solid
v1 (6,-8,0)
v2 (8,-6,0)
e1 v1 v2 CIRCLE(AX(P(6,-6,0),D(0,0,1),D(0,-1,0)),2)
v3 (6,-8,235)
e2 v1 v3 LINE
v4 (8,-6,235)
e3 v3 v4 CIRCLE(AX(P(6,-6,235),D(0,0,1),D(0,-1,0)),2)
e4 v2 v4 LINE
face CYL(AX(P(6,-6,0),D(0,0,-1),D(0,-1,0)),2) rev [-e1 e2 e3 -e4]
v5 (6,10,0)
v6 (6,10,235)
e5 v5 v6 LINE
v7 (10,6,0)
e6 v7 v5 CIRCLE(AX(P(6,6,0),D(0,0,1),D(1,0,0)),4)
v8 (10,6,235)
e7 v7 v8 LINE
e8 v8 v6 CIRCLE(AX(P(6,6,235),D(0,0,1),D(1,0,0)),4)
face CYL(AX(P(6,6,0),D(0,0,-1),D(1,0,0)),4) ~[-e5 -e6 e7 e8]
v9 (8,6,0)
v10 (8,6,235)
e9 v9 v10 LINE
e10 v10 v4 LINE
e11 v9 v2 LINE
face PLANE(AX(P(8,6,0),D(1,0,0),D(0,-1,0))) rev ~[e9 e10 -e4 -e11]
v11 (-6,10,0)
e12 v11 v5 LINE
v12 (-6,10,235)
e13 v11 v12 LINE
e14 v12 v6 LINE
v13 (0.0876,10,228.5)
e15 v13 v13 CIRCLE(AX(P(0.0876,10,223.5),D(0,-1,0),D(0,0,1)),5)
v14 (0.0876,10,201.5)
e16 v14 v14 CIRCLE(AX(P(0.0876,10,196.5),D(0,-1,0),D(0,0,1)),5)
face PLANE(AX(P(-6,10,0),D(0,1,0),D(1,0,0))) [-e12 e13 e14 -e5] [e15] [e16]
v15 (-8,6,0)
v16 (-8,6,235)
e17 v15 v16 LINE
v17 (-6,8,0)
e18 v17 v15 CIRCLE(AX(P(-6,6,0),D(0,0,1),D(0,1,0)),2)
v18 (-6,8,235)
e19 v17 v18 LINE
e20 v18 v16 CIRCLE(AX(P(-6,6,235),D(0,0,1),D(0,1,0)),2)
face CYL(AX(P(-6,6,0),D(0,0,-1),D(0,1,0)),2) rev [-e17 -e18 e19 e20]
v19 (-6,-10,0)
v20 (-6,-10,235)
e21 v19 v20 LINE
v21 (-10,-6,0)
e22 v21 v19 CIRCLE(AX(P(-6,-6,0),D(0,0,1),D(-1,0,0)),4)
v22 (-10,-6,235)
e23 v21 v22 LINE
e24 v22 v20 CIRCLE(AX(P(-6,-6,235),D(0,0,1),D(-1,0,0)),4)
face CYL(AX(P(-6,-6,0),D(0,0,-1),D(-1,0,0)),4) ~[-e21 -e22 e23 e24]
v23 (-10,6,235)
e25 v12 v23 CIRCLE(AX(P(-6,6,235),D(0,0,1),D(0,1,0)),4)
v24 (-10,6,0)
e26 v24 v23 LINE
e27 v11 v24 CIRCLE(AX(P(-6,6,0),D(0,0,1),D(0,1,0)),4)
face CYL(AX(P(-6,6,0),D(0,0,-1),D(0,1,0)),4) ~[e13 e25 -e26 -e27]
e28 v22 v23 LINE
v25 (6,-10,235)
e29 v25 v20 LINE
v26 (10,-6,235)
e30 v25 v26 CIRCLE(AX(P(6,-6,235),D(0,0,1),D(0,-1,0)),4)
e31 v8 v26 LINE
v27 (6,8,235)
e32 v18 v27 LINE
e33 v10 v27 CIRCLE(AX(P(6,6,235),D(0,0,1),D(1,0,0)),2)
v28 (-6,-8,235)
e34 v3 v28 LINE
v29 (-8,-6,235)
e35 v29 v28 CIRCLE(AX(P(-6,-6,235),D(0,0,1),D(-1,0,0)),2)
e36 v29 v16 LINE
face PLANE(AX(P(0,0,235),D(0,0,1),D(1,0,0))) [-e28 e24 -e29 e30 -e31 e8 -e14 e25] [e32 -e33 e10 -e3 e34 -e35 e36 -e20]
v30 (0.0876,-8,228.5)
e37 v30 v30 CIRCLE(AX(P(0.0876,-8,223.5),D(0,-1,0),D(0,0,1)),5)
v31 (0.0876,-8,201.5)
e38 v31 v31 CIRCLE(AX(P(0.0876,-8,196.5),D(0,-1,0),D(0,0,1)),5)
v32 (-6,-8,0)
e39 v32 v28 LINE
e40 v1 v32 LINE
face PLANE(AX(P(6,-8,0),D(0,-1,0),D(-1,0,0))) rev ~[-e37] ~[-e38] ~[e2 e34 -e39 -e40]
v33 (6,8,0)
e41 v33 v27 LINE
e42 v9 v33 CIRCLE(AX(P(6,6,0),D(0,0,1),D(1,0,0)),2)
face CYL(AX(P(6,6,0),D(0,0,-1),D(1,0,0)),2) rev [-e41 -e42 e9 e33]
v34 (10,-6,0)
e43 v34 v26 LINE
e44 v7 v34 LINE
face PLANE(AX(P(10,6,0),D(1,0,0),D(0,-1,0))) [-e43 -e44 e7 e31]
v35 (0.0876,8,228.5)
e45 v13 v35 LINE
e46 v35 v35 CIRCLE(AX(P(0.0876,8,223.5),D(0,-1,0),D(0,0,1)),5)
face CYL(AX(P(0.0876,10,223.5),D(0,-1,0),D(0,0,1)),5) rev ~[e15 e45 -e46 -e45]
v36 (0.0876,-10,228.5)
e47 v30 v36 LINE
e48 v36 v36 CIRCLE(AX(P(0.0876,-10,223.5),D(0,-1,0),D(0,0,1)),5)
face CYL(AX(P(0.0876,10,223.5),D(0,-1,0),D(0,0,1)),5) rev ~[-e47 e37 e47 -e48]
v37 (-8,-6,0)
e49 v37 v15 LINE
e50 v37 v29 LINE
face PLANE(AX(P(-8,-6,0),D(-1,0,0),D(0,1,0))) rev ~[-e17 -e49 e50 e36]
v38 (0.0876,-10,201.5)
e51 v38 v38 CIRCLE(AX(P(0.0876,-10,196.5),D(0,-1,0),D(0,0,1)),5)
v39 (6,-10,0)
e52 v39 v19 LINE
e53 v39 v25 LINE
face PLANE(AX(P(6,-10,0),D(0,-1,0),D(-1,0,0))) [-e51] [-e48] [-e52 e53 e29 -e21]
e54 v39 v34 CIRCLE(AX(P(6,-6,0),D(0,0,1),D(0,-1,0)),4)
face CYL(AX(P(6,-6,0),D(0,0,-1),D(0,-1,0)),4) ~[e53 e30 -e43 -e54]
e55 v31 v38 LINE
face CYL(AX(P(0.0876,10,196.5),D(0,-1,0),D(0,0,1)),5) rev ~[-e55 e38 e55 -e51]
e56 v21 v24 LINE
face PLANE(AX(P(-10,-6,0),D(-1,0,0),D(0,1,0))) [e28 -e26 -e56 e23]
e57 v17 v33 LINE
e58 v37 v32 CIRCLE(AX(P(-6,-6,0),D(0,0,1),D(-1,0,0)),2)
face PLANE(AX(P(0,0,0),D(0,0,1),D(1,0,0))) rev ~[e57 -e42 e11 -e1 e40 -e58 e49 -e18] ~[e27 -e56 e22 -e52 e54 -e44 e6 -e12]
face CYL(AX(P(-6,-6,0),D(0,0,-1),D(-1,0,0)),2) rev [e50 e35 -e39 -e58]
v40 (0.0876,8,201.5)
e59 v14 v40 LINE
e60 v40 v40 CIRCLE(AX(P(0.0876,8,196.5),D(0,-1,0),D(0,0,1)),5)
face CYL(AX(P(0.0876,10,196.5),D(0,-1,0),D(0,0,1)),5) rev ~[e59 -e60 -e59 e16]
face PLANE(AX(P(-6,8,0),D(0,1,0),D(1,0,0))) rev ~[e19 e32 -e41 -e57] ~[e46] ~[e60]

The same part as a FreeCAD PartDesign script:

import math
import FreeCAD as App
import Part
import Sketcher
Q = App.Units.Quantity

doc = App.newDocument("Part")
body = doc.addObject("PartDesign::Body", "Body")

sketch1 = body.newObject("Sketcher::SketchObject", "Sketch")
sketch1.AttachmentSupport = (doc.getObject("XY_Plane"), [""])
sketch1.MapMode = "FlatFace"
sketch1.addGeometry(Part.LineSegment(App.Vector(-10, 6, 0), App.Vector(-10, -6, 0)), False)
sketch1.addGeometry(Part.ArcOfCircle(Part.Circle(App.Vector(-6, -6, 0), App.Vector(0, 0, 1), 4), math.radians(180), math.radians(270)), False)
sketch1.addGeometry(Part.LineSegment(App.Vector(-6, -10, 0), App.Vector(6, -10, 0)), False)
sketch1.addGeometry(Part.ArcOfCircle(Part.Circle(App.Vector(6, -6, 0), App.Vector(0, 0, 1), 4), math.radians(-90), math.radians(0)), False)
sketch1.addGeometry(Part.LineSegment(App.Vector(10, -6, 0), App.Vector(10, 6, 0)), False)
sketch1.addGeometry(Part.ArcOfCircle(Part.Circle(App.Vector(6, 6, 0), App.Vector(0, 0, 1), 4), math.radians(0), math.radians(90)), False)
sketch1.addGeometry(Part.LineSegment(App.Vector(6, 10, 0), App.Vector(-6, 10, 0)), False)
sketch1.addGeometry(Part.ArcOfCircle(Part.Circle(App.Vector(-6, 6, 0), App.Vector(0, 0, 1), 4), math.radians(90), math.radians(180)), False)
sketch1.addGeometry(Part.ArcOfCircle(Part.Circle(App.Vector(-6, 6, 0), App.Vector(0, 0, 1), 2), math.radians(90), math.radians(180)), False)
sketch1.addGeometry(Part.LineSegment(App.Vector(-6, 8, 0), App.Vector(6, 8, 0)), False)
sketch1.addGeometry(Part.ArcOfCircle(Part.Circle(App.Vector(6, 6, 0), App.Vector(0, 0, 1), 2), math.radians(0), math.radians(90)), False)
sketch1.addGeometry(Part.LineSegment(App.Vector(8, 6, 0), App.Vector(8, -6, 0)), False)
sketch1.addGeometry(Part.ArcOfCircle(Part.Circle(App.Vector(6, -6, 0), App.Vector(0, 0, 1), 2), math.radians(-90), math.radians(0)), False)
sketch1.addGeometry(Part.LineSegment(App.Vector(6, -8, 0), App.Vector(-6, -8, 0)), False)
sketch1.addGeometry(Part.ArcOfCircle(Part.Circle(App.Vector(-6, -6, 0), App.Vector(0, 0, 1), 2), math.radians(180), math.radians(270)), False)
sketch1.addGeometry(Part.LineSegment(App.Vector(-8, -6, 0), App.Vector(-8, 6, 0)), False)
sketch1.addConstraint(Sketcher.Constraint("Tangent", 0, 2, 1, 1))
sketch1.addConstraint(Sketcher.Constraint("Tangent", 1, 2, 2, 1))
sketch1.addConstraint(Sketcher.Constraint("Tangent", 2, 2, 3, 1))
sketch1.addConstraint(Sketcher.Constraint("Tangent", 3, 2, 4, 1))
sketch1.addConstraint(Sketcher.Constraint("Tangent", 4, 2, 5, 1))
sketch1.addConstraint(Sketcher.Constraint("Tangent", 5, 2, 6, 1))
sketch1.addConstraint(Sketcher.Constraint("Tangent", 6, 2, 7, 1))
sketch1.addConstraint(Sketcher.Constraint("Tangent", 7, 2, 0, 1))
sketch1.addConstraint(Sketcher.Constraint("Tangent", 8, 1, 9, 1))
sketch1.addConstraint(Sketcher.Constraint("Tangent", 9, 2, 10, 2))
sketch1.addConstraint(Sketcher.Constraint("Tangent", 10, 1, 11, 1))
sketch1.addConstraint(Sketcher.Constraint("Tangent", 11, 2, 12, 2))
sketch1.addConstraint(Sketcher.Constraint("Tangent", 12, 1, 13, 1))
sketch1.addConstraint(Sketcher.Constraint("Tangent", 13, 2, 14, 2))
sketch1.addConstraint(Sketcher.Constraint("Tangent", 14, 1, 15, 1))
sketch1.addConstraint(Sketcher.Constraint("Tangent", 15, 2, 8, 2))
sketch1.addConstraint(Sketcher.Constraint("Vertical", 0))
sketch1.addConstraint(Sketcher.Constraint("Horizontal", 2))
sketch1.addConstraint(Sketcher.Constraint("Vertical", 4))
sketch1.addConstraint(Sketcher.Constraint("Horizontal", 6))
sketch1.addConstraint(Sketcher.Constraint("Horizontal", 9))
sketch1.addConstraint(Sketcher.Constraint("Vertical", 11))
sketch1.addConstraint(Sketcher.Constraint("Horizontal", 13))
sketch1.addConstraint(Sketcher.Constraint("Vertical", 15))
sketch1.addConstraint(Sketcher.Constraint("Coincident", 8, 3, 7, 3))
sketch1.addConstraint(Sketcher.Constraint("Coincident", 10, 3, 5, 3))
sketch1.addConstraint(Sketcher.Constraint("Coincident", 12, 3, 3, 3))
sketch1.addConstraint(Sketcher.Constraint("Equal", 1, 3))
sketch1.addConstraint(Sketcher.Constraint("Equal", 3, 5))
sketch1.addConstraint(Sketcher.Constraint("Equal", 5, 7))
sketch1.addConstraint(Sketcher.Constraint("Equal", 12, 14))
sketch1.addConstraint(Sketcher.Constraint("Symmetric", 1, 3, 5, 3, -1, 1))
sketch1.addConstraint(Sketcher.Constraint("Equal", 13, 0))
sketch1.addConstraint(Sketcher.Constraint("Radius", 1, Q("4 mm")))
sketch1.addConstraint(Sketcher.Constraint("Radius", 8, Q("2 mm")))
sketch1.addConstraint(Sketcher.Constraint("DistanceX", 0, 2, -1, 1, Q("10 mm")))
pad1 = body.newObject("PartDesign::Pad", "Pad")
pad1.Profile = sketch1
pad1.Length = 235

sketch2 = body.newObject("Sketcher::SketchObject", "Sketch001")
sketch2.AttachmentSupport = (doc.getObject("XZ_Plane"), [""])
sketch2.MapMode = "FlatFace"
sketch2.AttachmentOffset = App.Placement(App.Vector(0, 0, -10), App.Rotation())
sketch2.addGeometry(Part.Circle(App.Vector(0, 224, 0), App.Vector(0, 0, 1), 5), False)
sketch2.addGeometry(Part.Circle(App.Vector(0, 196, 0), App.Vector(0, 0, 1), 5), False)
sketch2.addConstraint(Sketcher.Constraint("Equal", 0, 1))
sketch2.addConstraint(Sketcher.Constraint("Vertical", 0, 3, 1, 3))
sketch2.addConstraint(Sketcher.Constraint("Diameter", 0, Q("10 mm")))
sketch2.addConstraint(Sketcher.Constraint("DistanceY", 1, 3, 0, 3, Q("27 mm")))
sketch2.addConstraint(Sketcher.Constraint("DistanceY", -1, 1, 0, 3, Q("223.5 mm")))
sketch2.addConstraint(Sketcher.Constraint("DistanceX", -1, 1, 0, 3, Q("0.0876 mm")))
doc.recompute()
hole = body.newObject("PartDesign::Hole", "Hole")
hole.Profile = sketch2
hole.ThreadType = "None"
hole.Diameter = 10
hole.DepthType = "ThroughAll"
hole.Reversed = True

doc.recompute()
